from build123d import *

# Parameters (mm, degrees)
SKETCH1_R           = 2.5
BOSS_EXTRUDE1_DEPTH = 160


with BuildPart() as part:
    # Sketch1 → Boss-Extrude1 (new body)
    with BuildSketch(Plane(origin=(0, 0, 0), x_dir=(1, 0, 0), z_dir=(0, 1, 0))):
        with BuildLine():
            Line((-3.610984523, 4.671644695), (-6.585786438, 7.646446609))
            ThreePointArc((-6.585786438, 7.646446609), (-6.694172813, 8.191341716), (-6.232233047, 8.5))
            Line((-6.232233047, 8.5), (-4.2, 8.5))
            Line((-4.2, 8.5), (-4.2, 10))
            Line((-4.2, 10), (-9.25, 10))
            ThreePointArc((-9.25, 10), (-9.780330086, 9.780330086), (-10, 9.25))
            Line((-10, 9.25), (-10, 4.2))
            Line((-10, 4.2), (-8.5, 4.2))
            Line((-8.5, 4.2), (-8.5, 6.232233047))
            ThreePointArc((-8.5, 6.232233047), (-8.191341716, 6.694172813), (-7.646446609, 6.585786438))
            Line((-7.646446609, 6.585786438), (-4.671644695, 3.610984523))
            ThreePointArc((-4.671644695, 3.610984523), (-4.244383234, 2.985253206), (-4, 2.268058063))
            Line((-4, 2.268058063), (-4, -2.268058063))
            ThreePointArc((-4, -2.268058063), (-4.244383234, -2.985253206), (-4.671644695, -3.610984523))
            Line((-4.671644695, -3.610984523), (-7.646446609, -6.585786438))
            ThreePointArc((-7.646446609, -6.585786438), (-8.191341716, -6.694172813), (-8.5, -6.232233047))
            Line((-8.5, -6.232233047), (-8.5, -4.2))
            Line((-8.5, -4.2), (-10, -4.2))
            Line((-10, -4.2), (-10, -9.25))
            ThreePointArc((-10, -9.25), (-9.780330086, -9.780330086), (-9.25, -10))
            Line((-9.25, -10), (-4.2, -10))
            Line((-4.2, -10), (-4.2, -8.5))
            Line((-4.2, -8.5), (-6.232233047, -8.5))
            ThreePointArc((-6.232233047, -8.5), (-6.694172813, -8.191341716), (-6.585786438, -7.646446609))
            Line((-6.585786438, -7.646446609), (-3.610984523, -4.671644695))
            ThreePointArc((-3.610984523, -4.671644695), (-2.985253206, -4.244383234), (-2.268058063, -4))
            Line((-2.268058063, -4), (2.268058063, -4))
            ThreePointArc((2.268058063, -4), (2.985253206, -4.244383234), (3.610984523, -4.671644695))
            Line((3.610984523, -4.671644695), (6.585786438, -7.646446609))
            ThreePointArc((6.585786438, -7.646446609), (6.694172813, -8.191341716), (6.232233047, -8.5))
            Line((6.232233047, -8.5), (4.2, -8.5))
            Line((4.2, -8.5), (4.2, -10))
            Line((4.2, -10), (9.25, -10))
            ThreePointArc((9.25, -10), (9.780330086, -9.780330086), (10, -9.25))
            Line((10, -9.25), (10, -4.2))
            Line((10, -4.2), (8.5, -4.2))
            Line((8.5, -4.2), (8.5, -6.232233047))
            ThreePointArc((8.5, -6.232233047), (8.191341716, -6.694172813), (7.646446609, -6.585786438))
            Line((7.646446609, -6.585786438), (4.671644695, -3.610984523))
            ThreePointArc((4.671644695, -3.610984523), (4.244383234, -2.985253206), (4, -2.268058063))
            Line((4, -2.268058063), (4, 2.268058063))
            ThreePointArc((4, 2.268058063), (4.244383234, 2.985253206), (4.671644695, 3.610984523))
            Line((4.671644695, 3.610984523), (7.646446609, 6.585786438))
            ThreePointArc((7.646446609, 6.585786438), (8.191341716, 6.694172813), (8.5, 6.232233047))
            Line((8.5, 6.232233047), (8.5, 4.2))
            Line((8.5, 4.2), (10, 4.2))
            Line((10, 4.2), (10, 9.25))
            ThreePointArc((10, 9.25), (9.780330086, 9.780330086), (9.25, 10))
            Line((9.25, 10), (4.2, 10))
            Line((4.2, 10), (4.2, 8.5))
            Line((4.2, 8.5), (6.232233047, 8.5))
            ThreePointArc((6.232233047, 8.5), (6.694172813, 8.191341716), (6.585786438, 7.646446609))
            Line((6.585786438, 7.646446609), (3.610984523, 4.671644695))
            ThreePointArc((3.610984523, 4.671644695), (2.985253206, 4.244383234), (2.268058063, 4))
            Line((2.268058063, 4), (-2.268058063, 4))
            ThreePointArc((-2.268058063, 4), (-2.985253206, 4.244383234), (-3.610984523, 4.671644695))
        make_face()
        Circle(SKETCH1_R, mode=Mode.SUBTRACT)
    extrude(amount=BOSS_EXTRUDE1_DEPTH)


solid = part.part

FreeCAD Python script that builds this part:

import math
import FreeCAD as App
import Part
import Sketcher
Q = App.Units.Quantity

doc = App.newDocument("Part")
body = doc.addObject("PartDesign::Body", "Body")

# Sketch on XZ plane
sketch1 = body.newObject("Sketcher::SketchObject", "Sketch")
sketch1.AttachmentSupport = (doc.getObject("XZ_Plane"), [""])
sketch1.MapMode = "FlatFace"
sketch1.addGeometry([
    Part.LineSegment(App.Vector(-3.610985, -4.671645, 0), App.Vector(-6.585786, -7.646447, 0)),  # 0
    Part.ArcOfCircle(Part.Circle(App.Vector(-6.232233, -8, 0), App.Vector(0, 0, 1), 0.5), math.radians(135), math.radians(270)),  # 1
    Part.LineSegment(App.Vector(-6.232233, -8.5, 0), App.Vector(-4.2, -8.5, 0)),  # 2
    Part.LineSegment(App.Vector(-4.2, -8.5, 0), App.Vector(-4.2, -10, 0)),  # 3
    Part.LineSegment(App.Vector(-4.2, -10, 0), App.Vector(-9.25, -10, 0)),  # 4
    Part.ArcOfCircle(Part.Circle(App.Vector(-9.25, -9.25, 0), App.Vector(0, 0, 1), 0.75), math.radians(180), math.radians(270)),  # 5
    Part.LineSegment(App.Vector(-10, -9.25, 0), App.Vector(-10, -4.2, 0)),  # 6
    Part.LineSegment(App.Vector(-10, -4.2, 0), App.Vector(-8.5, -4.2, 0)),  # 7
    Part.LineSegment(App.Vector(-8.5, -4.2, 0), App.Vector(-8.5, -6.232233, 0)),  # 8
    Part.ArcOfCircle(Part.Circle(App.Vector(-8, -6.232233, 0), App.Vector(0, 0, 1), 0.5), math.radians(-180), math.radians(-45)),  # 9
    Part.LineSegment(App.Vector(-7.646447, -6.585786, 0), App.Vector(-4.671645, -3.610985, 0)),  # 10
    Part.ArcOfCircle(Part.Circle(App.Vector(-6.755475, -1.729368, 0), App.Vector(0, 0, 1), 2.807638), math.radians(-42.080792), math.radians(-11.061698)),  # 11
    Part.LineSegment(App.Vector(-4, -2.268058, 0), App.Vector(-4, 2.268058, 0)),  # 12
    Part.ArcOfCircle(Part.Circle(App.Vector(-6.755475, 1.729368, 0), App.Vector(0, 0, 1), 2.807638), math.radians(11.061698), math.radians(42.080792)),  # 13
    Part.LineSegment(App.Vector(-4.671645, 3.610985, 0), App.Vector(-7.646447, 6.585786, 0)),  # 14
    Part.ArcOfCircle(Part.Circle(App.Vector(-8, 6.232233, 0), App.Vector(0, 0, 1), 0.5), math.radians(45), math.radians(180)),  # 15
    Part.LineSegment(App.Vector(-8.5, 6.232233, 0), App.Vector(-8.5, 4.2, 0)),  # 16
    Part.LineSegment(App.Vector(-8.5, 4.2, 0), App.Vector(-10, 4.2, 0)),  # 17
    Part.LineSegment(App.Vector(-10, 4.2, 0), App.Vector(-10, 9.25, 0)),  # 18
    Part.ArcOfCircle(Part.Circle(App.Vector(-9.25, 9.25, 0), App.Vector(0, 0, 1), 0.75), math.radians(90), math.radians(180)),  # 19
    Part.LineSegment(App.Vector(-9.25, 10, 0), App.Vector(-4.2, 10, 0)),  # 20
    Part.LineSegment(App.Vector(-4.2, 10, 0), App.Vector(-4.2, 8.5, 0)),  # 21
    Part.LineSegment(App.Vector(-4.2, 8.5, 0), App.Vector(-6.232233, 8.5, 0)),  # 22
    Part.ArcOfCircle(Part.Circle(App.Vector(-6.232233, 8, 0), App.Vector(0, 0, 1), 0.5), math.radians(90), math.radians(225)),  # 23
    Part.LineSegment(App.Vector(-6.585786, 7.646447, 0), App.Vector(-3.610985, 4.671645, 0)),  # 24
    Part.ArcOfCircle(Part.Circle(App.Vector(-1.729368, 6.755475, 0), App.Vector(0, 0, 1), 2.807638), math.radians(-132.080792), math.radians(-101.061698)),  # 25
    Part.LineSegment(App.Vector(-2.268058, 4, 0), App.Vector(2.268058, 4, 0)),  # 26
    Part.ArcOfCircle(Part.Circle(App.Vector(1.729368, 6.755475, 0), App.Vector(0, 0, 1), 2.807638), math.radians(-78.938302), math.radians(-47.919208)),  # 27
    Part.LineSegment(App.Vector(3.610985, 4.671645, 0), App.Vector(6.585786, 7.646447, 0)),  # 28
    Part.ArcOfCircle(Part.Circle(App.Vector(6.232233, 8, 0), App.Vector(0, 0, 1), 0.5), math.radians(-45), math.radians(90)),  # 29
    Part.LineSegment(App.Vector(6.232233, 8.5, 0), App.Vector(4.2, 8.5, 0)),  # 30
    Part.LineSegment(App.Vector(4.2, 8.5, 0), App.Vector(4.2, 10, 0)),  # 31
    Part.LineSegment(App.Vector(4.2, 10, 0), App.Vector(9.25, 10, 0)),  # 32
    Part.ArcOfCircle(Part.Circle(App.Vector(9.25, 9.25, 0), App.Vector(0, 0, 1), 0.75), math.radians(0), math.radians(90)),  # 33
    Part.LineSegment(App.Vector(10, 9.25, 0), App.Vector(10, 4.2, 0)),  # 34
    Part.LineSegment(App.Vector(10, 4.2, 0), App.Vector(8.5, 4.2, 0)),  # 35
    Part.LineSegment(App.Vector(8.5, 4.2, 0), App.Vector(8.5, 6.232233, 0)),  # 36
    Part.ArcOfCircle(Part.Circle(App.Vector(8, 6.232233, 0), App.Vector(0, 0, 1), 0.5), math.radians(0), math.radians(135)),  # 37
    Part.LineSegment(App.Vector(7.646447, 6.585786, 0), App.Vector(4.671645, 3.610985, 0)),  # 38
    Part.ArcOfCircle(Part.Circle(App.Vector(6.755475, 1.729368, 0), App.Vector(0, 0, 1), 2.807638), math.radians(137.919208), math.radians(168.938302)),  # 39
    Part.LineSegment(App.Vector(4, 2.268058, 0), App.Vector(4, -2.268058, 0)),  # 40
    Part.ArcOfCircle(Part.Circle(App.Vector(6.755475, -1.729368, 0), App.Vector(0, 0, 1), 2.807638), math.radians(-168.938302), math.radians(-137.919208)),  # 41
    Part.LineSegment(App.Vector(4.671645, -3.610985, 0), App.Vector(7.646447, -6.585786, 0)),  # 42
    Part.ArcOfCircle(Part.Circle(App.Vector(8, -6.232233, 0), App.Vector(0, 0, 1), 0.5), math.radians(-135), math.radians(0)),  # 43
    Part.LineSegment(App.Vector(8.5, -6.232233, 0), App.Vector(8.5, -4.2, 0)),  # 44
    Part.LineSegment(App.Vector(8.5, -4.2, 0), App.Vector(10, -4.2, 0)),  # 45
    Part.LineSegment(App.Vector(10, -4.2, 0), App.Vector(10, -9.25, 0)),  # 46
    Part.ArcOfCircle(Part.Circle(App.Vector(9.25, -9.25, 0), App.Vector(0, 0, 1), 0.75), math.radians(-90), math.radians(0)),  # 47
    Part.LineSegment(App.Vector(9.25, -10, 0), App.Vector(4.2, -10, 0)),  # 48
    Part.LineSegment(App.Vector(4.2, -10, 0), App.Vector(4.2, -8.5, 0)),  # 49
    Part.LineSegment(App.Vector(4.2, -8.5, 0), App.Vector(6.232233, -8.5, 0)),  # 50
    Part.ArcOfCircle(Part.Circle(App.Vector(6.232233, -8, 0), App.Vector(0, 0, 1), 0.5), math.radians(-90), math.radians(45)),  # 51
    Part.LineSegment(App.Vector(6.585786, -7.646447, 0), App.Vector(3.610985, -4.671645, 0)),  # 52
    Part.ArcOfCircle(Part.Circle(App.Vector(1.729368, -6.755475, 0), App.Vector(0, 0, 1), 2.807638), math.radians(47.919208), math.radians(78.938302)),  # 53
    Part.LineSegment(App.Vector(2.268058, -4, 0), App.Vector(-2.268058, -4, 0)),  # 54
    Part.ArcOfCircle(Part.Circle(App.Vector(-1.729368, -6.755475, 0), App.Vector(0, 0, 1), 2.807638), math.radians(101.061698), math.radians(132.080792)),  # 55
    Part.Circle(App.Vector(0, 0, 0), App.Vector(0, 0, 1), 2.5),  # 56
], False)
sketch1.addConstraint([
    Sketcher.Constraint("Tangent", 0, 2, 1, 1),
    Sketcher.Constraint("Tangent", 1, 2, 2, 1),
    Sketcher.Constraint("Coincident", 2, 2, 3, 1),
    Sketcher.Constraint("Coincident", 3, 2, 4, 1),
    Sketcher.Constraint("Tangent", 4, 2, 5, 2),
    Sketcher.Constraint("Tangent", 5, 1, 6, 1),
    Sketcher.Constraint("Coincident", 6, 2, 7, 1),
    Sketcher.Constraint("Coincident", 7, 2, 8, 1),
    Sketcher.Constraint("Tangent", 8, 2, 9, 1),
    Sketcher.Constraint("Tangent", 9, 2, 10, 1),
    Sketcher.Constraint("Coincident", 10, 2, 11, 1),
    Sketcher.Constraint("Coincident", 11, 2, 12, 1),
    Sketcher.Constraint("Coincident", 12, 2, 13, 1),
    Sketcher.Constraint("Coincident", 13, 2, 14, 1),
    Sketcher.Constraint("Tangent", 14, 2, 15, 1),
    Sketcher.Constraint("Tangent", 15, 2, 16, 1),
    Sketcher.Constraint("Coincident", 16, 2, 17, 1),
    Sketcher.Constraint("Coincident", 17, 2, 18, 1),
    Sketcher.Constraint("Tangent", 18, 2, 19, 2),
    Sketcher.Constraint("Tangent", 19, 1, 20, 1),
    Sketcher.Constraint("Coincident", 20, 2, 21, 1),
    Sketcher.Constraint("Coincident", 21, 2, 22, 1),
    Sketcher.Constraint("Tangent", 22, 2, 23, 1),
    Sketcher.Constraint("Tangent", 23, 2, 24, 1),
    Sketcher.Constraint("Coincident", 24, 2, 25, 1),
    Sketcher.Constraint("Coincident", 25, 2, 26, 1),
    Sketcher.Constraint("Coincident", 26, 2, 27, 1),
    Sketcher.Constraint("Coincident", 27, 2, 28, 1),
    Sketcher.Constraint("Tangent", 28, 2, 29, 1),
    Sketcher.Constraint("Tangent", 29, 2, 30, 1),
    Sketcher.Constraint("Coincident", 30, 2, 31, 1),
    Sketcher.Constraint("Coincident", 31, 2, 32, 1),
    Sketcher.Constraint("Tangent", 32, 2, 33, 2),
    Sketcher.Constraint("Tangent", 33, 1, 34, 1),
    Sketcher.Constraint("Coincident", 34, 2, 35, 1),
    Sketcher.Constraint("Coincident", 35, 2, 36, 1),
    Sketcher.Constraint("Tangent", 36, 2, 37, 1),
    Sketcher.Constraint("Tangent", 37, 2, 38, 1),
    Sketcher.Constraint("Coincident", 38, 2, 39, 1),
    Sketcher.Constraint("Coincident", 39, 2, 40, 1),
    Sketcher.Constraint("Coincident", 40, 2, 41, 1),
    Sketcher.Constraint("Coincident", 41, 2, 42, 1),
    Sketcher.Constraint("Tangent", 42, 2, 43, 1),
    Sketcher.Constraint("Tangent", 43, 2, 44, 1),
    Sketcher.Constraint("Coincident", 44, 2, 45, 1),
    Sketcher.Constraint("Coincident", 45, 2, 46, 1),
    Sketcher.Constraint("Tangent", 46, 2, 47, 2),
    Sketcher.Constraint("Tangent", 47, 1, 48, 1),
    Sketcher.Constraint("Coincident", 48, 2, 49, 1),
    Sketcher.Constraint("Coincident", 49, 2, 50, 1),
    Sketcher.Constraint("Tangent", 50, 2, 51, 1),
    Sketcher.Constraint("Tangent", 51, 2, 52, 1),
    Sketcher.Constraint("Coincident", 52, 2, 53, 1),
    Sketcher.Constraint("Coincident", 53, 2, 54, 1),
    Sketcher.Constraint("Coincident", 54, 2, 55, 1),
    Sketcher.Constraint("Coincident", 55, 2, 0, 1),
    Sketcher.Constraint("Horizontal", 2),
    Sketcher.Constraint("Vertical", 3),
    Sketcher.Constraint("Horizontal", 4),
    Sketcher.Constraint("Vertical", 6),
    Sketcher.Constraint("Horizontal", 7),
    Sketcher.Constraint("Vertical", 8),
    Sketcher.Constraint("Vertical", 12),
    Sketcher.Constraint("Vertical", 16),
    Sketcher.Constraint("Horizontal", 17),
    Sketcher.Constraint("Vertical", 18),
    Sketcher.Constraint("Horizontal", 20),
    Sketcher.Constraint("Vertical", 21),
    Sketcher.Constraint("Horizontal", 22),
    Sketcher.Constraint("Horizontal", 26),
    Sketcher.Constraint("Horizontal", 30),
    Sketcher.Constraint("Vertical", 31),
    Sketcher.Constraint("Horizontal", 32),
    Sketcher.Constraint("Vertical", 34),
    Sketcher.Constraint("Horizontal", 35),
    Sketcher.Constraint("Vertical", 36),
    Sketcher.Constraint("Vertical", 40),
    Sketcher.Constraint("Vertical", 44),
    Sketcher.Constraint("Horizontal", 45),
    Sketcher.Constraint("Vertical", 46),
    Sketcher.Constraint("Horizontal", 48),
    Sketcher.Constraint("Vertical", 49),
    Sketcher.Constraint("Horizontal", 50),
    Sketcher.Constraint("Horizontal", 54),
    Sketcher.Constraint("Coincident", 56, 3, -1, 1),
    Sketcher.Constraint("Equal", 1, 9),
    Sketcher.Constraint("Equal", 11, 13),
    Sketcher.Constraint("Equal", 9, 15),
    Sketcher.Constraint("Equal", 5, 19),
    Sketcher.Constraint("Equal", 15, 23),
    Sketcher.Constraint("Equal", 13, 25),
    Sketcher.Constraint("Equal", 25, 27),
    Sketcher.Constraint("Equal", 23, 29),
    Sketcher.Constraint("Equal", 19, 33),
    Sketcher.Constraint("Equal", 29, 37),
    Sketcher.Constraint("Equal", 27, 39),
    Sketcher.Constraint("Equal", 39, 41),
    Sketcher.Constraint("Equal", 37, 43),
    Sketcher.Constraint("Equal", 33, 47),
    Sketcher.Constraint("Equal", 43, 51),
    Sketcher.Constraint("Equal", 41, 53),
    Sketcher.Constraint("Equal", 53, 55),
    Sketcher.Constraint("Symmetric", 1, 3, 29, 3, -1, 1),
    Sketcher.Constraint("Symmetric", 5, 3, 33, 3, -1, 1),
    Sketcher.Constraint("Symmetric", 9, 3, 37, 3, -1, 1),
    Sketcher.Constraint("Symmetric", 11, 3, 39, 3, -1, 1),
    Sketcher.Constraint("Symmetric", 13, 3, 41, 3, -1, 1),
    Sketcher.Constraint("Symmetric", 15, 3, 43, 3, -1, 1),
    Sketcher.Constraint("Symmetric", 19, 3, 47, 3, -1, 1),
    Sketcher.Constraint("Symmetric", 23, 3, 51, 3, -1, 1),
    Sketcher.Constraint("Symmetric", 25, 3, 53, 3, -1, 1),
    Sketcher.Constraint("Symmetric", 27, 3, 55, 3, -1, 1),
    Sketcher.Constraint("Symmetric", 25, 3, 27, 3, -2),
    Sketcher.Constraint("Symmetric", 23, 3, 29, 3, -2),
    Sketcher.Constraint("Symmetric", 19, 3, 33, 3, -2),
    Sketcher.Constraint("Symmetric", 15, 3, 37, 3, -2),
    Sketcher.Constraint("Symmetric", 13, 3, 39, 3, -2),
    Sketcher.Constraint("Parallel", 0, 10),
    Sketcher.Constraint("Perpendicular", 10, 14),
    Sketcher.Constraint("Parallel", 14, 24),
    Sketcher.Constraint("Perpendicular", 24, 28),
    Sketcher.Constraint("Parallel", 28, 38),
    Sketcher.Constraint("Perpendicular", 38, 42),
    Sketcher.Constraint("Parallel", 42, 52),
    Sketcher.Constraint("Horizontal", 24, 2, 27, 2),
    Sketcher.Constraint("Horizontal", 17, 2, 34, 2),
    Sketcher.Constraint("Horizontal", 12, 2, 39, 2),
    Sketcher.Constraint("Horizontal", 7, 2, 44, 2),
    Sketcher.Constraint("Vertical", 3, 2, 20, 2),
    Sketcher.Constraint("Vertical", 31, 2, 48, 2),
    Sketcher.Constraint("Vertical", 26, 2, 53, 2),
    Sketcher.Constraint("Equal", 22, 30),
    Sketcher.Constraint("Equal", 45, 3),
    Sketcher.Constraint("Equal", 48, 6),
    Sketcher.Constraint("Equal", 50, 8),
    Sketcher.Constraint("Equal", 54, 12),
    Sketcher.Constraint("Equal", 8, 16),
    Sketcher.Constraint("Equal", 0, 10),
    Sketcher.Constraint("Diameter", 56, Q("5 mm")),
    Sketcher.Constraint("Radius", 1, Q("0.5 mm")),
    Sketcher.Constraint("Radius", 5, Q("0.75 mm")),
    Sketcher.Constraint("DistanceX", 7, 1, 7, 2, Q("1.5 mm")),
    Sketcher.Constraint("DistanceY", 1, 3, -1, 1, Q("8 mm")),
    Sketcher.Constraint("DistanceX", 9, 3, -1, 1, Q("8 mm")),
    Sketcher.Constraint("DistanceX", 11, 2, -1, 1, Q("4 mm")),
    Sketcher.Constraint("DistanceY", -1, 1, 25, 2, Q("4 mm")),
    Sketcher.Constraint("DistanceX", 4, 2, 4, 1, Q("5.05 mm")),
    Sketcher.Constraint("Radius", 11, Q("2.807638 mm")),
    Sketcher.Constraint("DistanceX", 2, 1, 2, 2, Q("2.032233 mm")),
    Sketcher.Constraint("DistanceX", 26, 1, 26, 2, Q("4.536116 mm")),
    Sketcher.Constraint("DistanceY", 11, 3, -1, 1, Q("1.729368 mm")),
])
pad1 = body.newObject("PartDesign::Pad", "Pad")
pad1.Profile = sketch1
pad1.Length = 160
pad1.Reversed = True

doc.recompute()
